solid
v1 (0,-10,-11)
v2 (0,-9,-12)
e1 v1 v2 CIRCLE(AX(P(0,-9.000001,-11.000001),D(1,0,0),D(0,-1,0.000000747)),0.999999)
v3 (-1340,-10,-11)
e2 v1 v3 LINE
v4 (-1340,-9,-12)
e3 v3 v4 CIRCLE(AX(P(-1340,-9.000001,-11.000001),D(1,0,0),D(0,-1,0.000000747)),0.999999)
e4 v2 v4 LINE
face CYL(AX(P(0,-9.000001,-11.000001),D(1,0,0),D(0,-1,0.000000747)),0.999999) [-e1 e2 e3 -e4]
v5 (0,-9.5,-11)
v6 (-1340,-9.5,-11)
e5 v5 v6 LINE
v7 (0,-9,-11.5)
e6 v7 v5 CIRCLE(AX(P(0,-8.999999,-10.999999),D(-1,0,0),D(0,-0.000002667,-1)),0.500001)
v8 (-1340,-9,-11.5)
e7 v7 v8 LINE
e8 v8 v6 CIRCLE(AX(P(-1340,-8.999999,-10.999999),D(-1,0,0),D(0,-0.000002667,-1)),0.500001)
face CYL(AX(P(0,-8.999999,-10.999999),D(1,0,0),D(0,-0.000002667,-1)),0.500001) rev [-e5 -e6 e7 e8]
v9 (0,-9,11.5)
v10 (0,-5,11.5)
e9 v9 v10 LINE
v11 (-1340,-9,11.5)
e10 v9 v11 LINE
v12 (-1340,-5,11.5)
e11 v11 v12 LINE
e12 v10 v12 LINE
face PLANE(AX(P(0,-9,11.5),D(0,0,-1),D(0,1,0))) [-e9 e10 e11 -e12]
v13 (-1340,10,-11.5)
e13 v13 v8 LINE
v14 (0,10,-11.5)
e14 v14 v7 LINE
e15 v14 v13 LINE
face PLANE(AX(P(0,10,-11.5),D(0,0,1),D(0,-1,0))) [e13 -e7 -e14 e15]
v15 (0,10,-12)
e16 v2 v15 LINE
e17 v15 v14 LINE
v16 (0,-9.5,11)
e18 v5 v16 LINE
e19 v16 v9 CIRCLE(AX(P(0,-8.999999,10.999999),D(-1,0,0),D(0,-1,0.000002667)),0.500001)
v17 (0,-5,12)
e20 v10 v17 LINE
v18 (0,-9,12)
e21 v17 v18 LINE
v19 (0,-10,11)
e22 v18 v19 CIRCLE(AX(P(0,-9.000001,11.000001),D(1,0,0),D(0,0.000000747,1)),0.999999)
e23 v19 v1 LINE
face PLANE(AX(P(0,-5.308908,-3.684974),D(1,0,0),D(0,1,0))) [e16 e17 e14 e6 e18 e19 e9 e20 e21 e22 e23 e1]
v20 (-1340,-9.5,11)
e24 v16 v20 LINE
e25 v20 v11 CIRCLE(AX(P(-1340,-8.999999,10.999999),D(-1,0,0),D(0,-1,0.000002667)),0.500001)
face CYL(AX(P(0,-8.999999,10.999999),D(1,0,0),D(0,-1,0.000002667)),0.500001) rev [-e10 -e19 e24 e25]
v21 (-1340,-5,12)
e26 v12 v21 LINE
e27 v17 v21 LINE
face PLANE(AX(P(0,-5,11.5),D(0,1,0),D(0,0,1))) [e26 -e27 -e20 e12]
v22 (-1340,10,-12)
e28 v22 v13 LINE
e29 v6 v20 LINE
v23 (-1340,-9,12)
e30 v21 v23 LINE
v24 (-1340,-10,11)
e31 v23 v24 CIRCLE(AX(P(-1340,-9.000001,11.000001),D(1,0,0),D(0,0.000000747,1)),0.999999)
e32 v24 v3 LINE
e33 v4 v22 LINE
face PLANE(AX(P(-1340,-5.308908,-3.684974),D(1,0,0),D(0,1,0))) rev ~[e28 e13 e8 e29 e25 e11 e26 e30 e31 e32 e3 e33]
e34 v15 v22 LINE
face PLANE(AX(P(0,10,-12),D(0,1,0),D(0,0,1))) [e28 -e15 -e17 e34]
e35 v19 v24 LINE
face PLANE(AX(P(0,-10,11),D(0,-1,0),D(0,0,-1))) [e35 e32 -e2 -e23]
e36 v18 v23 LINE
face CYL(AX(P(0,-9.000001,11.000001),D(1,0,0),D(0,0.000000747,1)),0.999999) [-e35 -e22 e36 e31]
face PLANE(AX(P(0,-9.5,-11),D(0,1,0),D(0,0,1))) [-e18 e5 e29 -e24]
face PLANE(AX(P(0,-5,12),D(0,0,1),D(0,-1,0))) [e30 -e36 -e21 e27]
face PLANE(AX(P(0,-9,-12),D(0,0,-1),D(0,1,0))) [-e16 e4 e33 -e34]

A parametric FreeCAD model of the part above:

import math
import FreeCAD as App
import Part
import Sketcher

V = App.Vector

doc = App.newDocument("Part")
body = doc.addObject("PartDesign::Body", "Body")

# Sketch on YZ plane
sketch1 = body.newObject("Sketcher::SketchObject", "Sketch")
sketch1.AttachmentSupport = (doc.getObject("YZ_Plane"), [""])
sketch1.MapMode = "FlatFace"
sketch1.addGeometry([
    Part.LineSegment(V(-9, -12, 0), V(10, -12, 0)),  # 0
    Part.LineSegment(V(10, -12, 0), V(10, -11.5, 0)),  # 1
    Part.LineSegment(V(10, -11.5, 0), V(-9, -11.5, 0)),  # 2
    Part.ArcOfCircle(Part.Circle(V(-9, -11, 0), V(0, 0, 1), 0.5), math.radians(-180), math.radians(-90)),  # 3
    Part.LineSegment(V(-9.5, -11, 0), V(-9.5, 11, 0)),  # 4
    Part.ArcOfCircle(Part.Circle(V(-9, 11, 0), V(0, 0, 1), 0.5), math.radians(90), math.radians(180)),  # 5
    Part.LineSegment(V(-9, 11.5, 0), V(-5, 11.5, 0)),  # 6
    Part.LineSegment(V(-5, 11.5, 0), V(-5, 12, 0)),  # 7
    Part.LineSegment(V(-5, 12, 0), V(-9, 12, 0)),  # 8
    Part.ArcOfCircle(Part.Circle(V(-9, 11, 0), V(0, 0, 1), 1), math.radians(90), math.radians(180)),  # 9
    Part.LineSegment(V(-10, 11, 0), V(-10, -11, 0)),  # 10
    Part.ArcOfCircle(Part.Circle(V(-9, -11, 0), V(0, 0, 1), 1), math.radians(180), math.radians(270)),  # 11
], False)
sketch1.addConstraint([
    Sketcher.Constraint("Coincident", 0, 2, 1, 1),
    Sketcher.Constraint("Coincident", 1, 2, 2, 1),
    Sketcher.Constraint("Coincident", 2, 2, 3, 2),
    Sketcher.Constraint("Coincident", 3, 1, 4, 1),
    Sketcher.Constraint("Coincident", 4, 2, 5, 2),
    Sketcher.Constraint("Coincident", 5, 1, 6, 1),
    Sketcher.Constraint("Coincident", 6, 2, 7, 1),
    Sketcher.Constraint("Coincident", 7, 2, 8, 1),
    Sketcher.Constraint("Tangent", 8, 2, 9, 1),
    Sketcher.Constraint("Tangent", 9, 2, 10, 1),
    Sketcher.Constraint("Tangent", 10, 2, 11, 1),
    Sketcher.Constraint("Tangent", 11, 2, 0, 1),
    Sketcher.Constraint("Horizontal", 0),
    Sketcher.Constraint("Vertical", 1),
    Sketcher.Constraint("Horizontal", 2),
    Sketcher.Constraint("Vertical", 4),
    Sketcher.Constraint("Horizontal", 6),
    Sketcher.Constraint("Vertical", 7),
    Sketcher.Constraint("Horizontal", 8),
    Sketcher.Constraint("Vertical", 10),
    Sketcher.Constraint("Coincident", 9, 3, 5, 3),
    Sketcher.Constraint("Coincident", 11, 3, 3, 3),
    Sketcher.Constraint("Equal", 3, 5),
    Sketcher.Constraint("Symmetric", 2, 2, 5, 1, -1),
    Sketcher.Constraint("Horizontal", 11, 3, 3, 1),
    Sketcher.Constraint("Horizontal", 9, 3, 4, 2),
    Sketcher.Constraint("Vertical", 11, 3, 2, 2),
    Sketcher.Constraint("Radius", 9, 0.999999),
    Sketcher.Constraint("Radius", 3, 0.500001),
    Sketcher.Constraint("DistanceX", 0, 1, 0, 2, 19.0),
    Sketcher.Constraint("DistanceX", 6, 1, 6, 2, 4.0),
    Sketcher.Constraint("DistanceY", 4, 1, 4, 2, 22.0),
    Sketcher.Constraint("DistanceX", 3, 3, -1, 1, 8.999999),
])
pad1 = body.newObject("PartDesign::Pad", "Pad")
pad1.Profile = sketch1
pad1.Length = 1340
pad1.Reversed = True

doc.recompute()
